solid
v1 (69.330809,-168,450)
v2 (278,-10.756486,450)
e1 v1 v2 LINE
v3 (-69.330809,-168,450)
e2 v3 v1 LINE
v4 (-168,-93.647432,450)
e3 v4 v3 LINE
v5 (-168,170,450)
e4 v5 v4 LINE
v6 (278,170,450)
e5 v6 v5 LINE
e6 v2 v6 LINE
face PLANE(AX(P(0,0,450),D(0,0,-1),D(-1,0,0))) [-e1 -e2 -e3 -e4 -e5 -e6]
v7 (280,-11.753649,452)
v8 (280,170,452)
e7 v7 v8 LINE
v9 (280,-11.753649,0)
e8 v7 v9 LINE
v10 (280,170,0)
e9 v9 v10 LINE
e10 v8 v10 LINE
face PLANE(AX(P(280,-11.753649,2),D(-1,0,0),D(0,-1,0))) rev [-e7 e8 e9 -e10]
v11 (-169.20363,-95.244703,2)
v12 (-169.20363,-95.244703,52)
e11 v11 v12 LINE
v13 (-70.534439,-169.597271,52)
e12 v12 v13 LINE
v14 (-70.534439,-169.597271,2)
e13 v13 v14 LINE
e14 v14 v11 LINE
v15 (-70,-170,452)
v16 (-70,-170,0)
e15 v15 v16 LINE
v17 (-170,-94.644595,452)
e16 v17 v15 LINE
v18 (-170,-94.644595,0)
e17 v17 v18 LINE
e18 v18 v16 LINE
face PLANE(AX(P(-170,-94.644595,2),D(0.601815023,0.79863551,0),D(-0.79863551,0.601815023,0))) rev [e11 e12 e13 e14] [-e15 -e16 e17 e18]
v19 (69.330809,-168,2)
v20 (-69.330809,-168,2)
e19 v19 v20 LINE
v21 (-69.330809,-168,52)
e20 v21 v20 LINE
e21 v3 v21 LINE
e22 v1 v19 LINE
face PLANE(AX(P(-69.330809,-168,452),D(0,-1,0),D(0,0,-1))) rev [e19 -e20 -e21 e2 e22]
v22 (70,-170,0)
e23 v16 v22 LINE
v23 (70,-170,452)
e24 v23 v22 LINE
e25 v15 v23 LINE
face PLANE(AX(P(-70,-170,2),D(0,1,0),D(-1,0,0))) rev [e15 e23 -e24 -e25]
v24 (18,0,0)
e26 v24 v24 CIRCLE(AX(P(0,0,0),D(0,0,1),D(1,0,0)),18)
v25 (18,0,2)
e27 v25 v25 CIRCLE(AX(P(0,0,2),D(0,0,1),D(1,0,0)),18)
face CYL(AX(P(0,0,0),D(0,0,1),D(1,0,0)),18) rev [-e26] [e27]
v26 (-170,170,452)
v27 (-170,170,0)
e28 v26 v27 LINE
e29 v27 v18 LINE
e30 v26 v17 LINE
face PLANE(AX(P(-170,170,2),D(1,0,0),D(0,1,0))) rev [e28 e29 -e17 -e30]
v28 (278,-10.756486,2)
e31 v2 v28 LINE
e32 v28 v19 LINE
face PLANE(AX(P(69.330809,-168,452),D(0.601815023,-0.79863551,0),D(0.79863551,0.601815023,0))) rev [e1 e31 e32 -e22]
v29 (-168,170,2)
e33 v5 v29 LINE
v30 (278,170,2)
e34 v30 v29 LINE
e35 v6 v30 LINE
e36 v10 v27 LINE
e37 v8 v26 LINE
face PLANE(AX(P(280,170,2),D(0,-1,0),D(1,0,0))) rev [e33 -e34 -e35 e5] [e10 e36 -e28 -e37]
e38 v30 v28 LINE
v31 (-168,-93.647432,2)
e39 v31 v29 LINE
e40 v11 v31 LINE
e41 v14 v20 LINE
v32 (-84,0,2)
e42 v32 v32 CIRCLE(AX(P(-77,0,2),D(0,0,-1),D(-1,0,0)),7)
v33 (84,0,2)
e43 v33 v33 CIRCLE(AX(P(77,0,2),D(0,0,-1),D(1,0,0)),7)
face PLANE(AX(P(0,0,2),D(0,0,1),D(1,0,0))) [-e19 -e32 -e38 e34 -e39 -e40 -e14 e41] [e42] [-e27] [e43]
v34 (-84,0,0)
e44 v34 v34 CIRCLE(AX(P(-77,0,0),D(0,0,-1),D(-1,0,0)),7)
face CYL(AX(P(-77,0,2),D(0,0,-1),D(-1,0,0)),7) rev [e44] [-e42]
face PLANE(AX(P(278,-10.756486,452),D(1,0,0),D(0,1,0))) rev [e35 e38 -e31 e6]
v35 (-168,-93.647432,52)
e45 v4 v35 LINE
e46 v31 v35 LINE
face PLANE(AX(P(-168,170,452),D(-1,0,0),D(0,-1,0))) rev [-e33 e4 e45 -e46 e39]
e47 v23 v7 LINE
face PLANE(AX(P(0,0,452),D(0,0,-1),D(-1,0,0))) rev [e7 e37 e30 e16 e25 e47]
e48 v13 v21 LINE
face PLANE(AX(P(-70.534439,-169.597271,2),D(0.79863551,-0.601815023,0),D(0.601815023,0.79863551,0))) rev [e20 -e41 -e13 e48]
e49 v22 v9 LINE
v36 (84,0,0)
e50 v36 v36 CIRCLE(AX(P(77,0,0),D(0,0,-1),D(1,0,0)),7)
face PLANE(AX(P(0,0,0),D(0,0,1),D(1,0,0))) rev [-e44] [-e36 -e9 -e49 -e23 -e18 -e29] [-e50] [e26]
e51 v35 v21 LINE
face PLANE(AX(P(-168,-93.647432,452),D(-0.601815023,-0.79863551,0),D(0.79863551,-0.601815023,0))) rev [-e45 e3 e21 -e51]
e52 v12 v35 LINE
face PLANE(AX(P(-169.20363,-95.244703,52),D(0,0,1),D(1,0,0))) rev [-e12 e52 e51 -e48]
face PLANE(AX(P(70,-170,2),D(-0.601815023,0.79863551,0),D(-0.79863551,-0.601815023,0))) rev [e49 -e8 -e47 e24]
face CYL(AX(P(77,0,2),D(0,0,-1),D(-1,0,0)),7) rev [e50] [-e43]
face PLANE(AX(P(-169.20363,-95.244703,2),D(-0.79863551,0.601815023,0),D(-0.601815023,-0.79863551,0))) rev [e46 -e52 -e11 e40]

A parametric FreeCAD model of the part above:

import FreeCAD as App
import Part
import Sketcher
Q = App.Units.Quantity

doc = App.newDocument("Part")
body = doc.addObject("PartDesign::Body", "Body")

# Sketch on XY plane
sketch1 = body.newObject("Sketcher::SketchObject", "Sketch")
sketch1.AttachmentSupport = (doc.getObject("XY_Plane"), [""])
sketch1.MapMode = "FlatFace"
sketch1.addGeometry(Part.LineSegment(App.Vector(-70, -170, 0), App.Vector(70, -170, 0)), False)
sketch1.addGeometry(Part.LineSegment(App.Vector(70, -170, 0), App.Vector(280, -12, 0)), False)
sketch1.addGeometry(Part.LineSegment(App.Vector(280, -12, 0), App.Vector(280, 170, 0)), False)
sketch1.addGeometry(Part.LineSegment(App.Vector(280, 170, 0), App.Vector(-170, 170, 0)), False)
sketch1.addGeometry(Part.LineSegment(App.Vector(-170, 170, 0), App.Vector(-170, -95, 0)), False)
sketch1.addGeometry(Part.LineSegment(App.Vector(-170, -95, 0), App.Vector(-70, -170, 0)), False)
sketch1.addConstraint(Sketcher.Constraint("Coincident", 0, 2, 1, 1))
sketch1.addConstraint(Sketcher.Constraint("Coincident", 1, 2, 2, 1))
sketch1.addConstraint(Sketcher.Constraint("Coincident", 2, 2, 3, 1))
sketch1.addConstraint(Sketcher.Constraint("Coincident", 3, 2, 4, 1))
sketch1.addConstraint(Sketcher.Constraint("Coincident", 4, 2, 5, 1))
sketch1.addConstraint(Sketcher.Constraint("Coincident", 5, 2, 0, 1))
sketch1.addConstraint(Sketcher.Constraint("Horizontal", 0))
sketch1.addConstraint(Sketcher.Constraint("Vertical", 2))
sketch1.addConstraint(Sketcher.Constraint("Horizontal", 3))
sketch1.addConstraint(Sketcher.Constraint("Vertical", 4))
sketch1.addConstraint(Sketcher.Constraint("DistanceX", 0, 1, 0, 2, Q("140 mm")))
sketch1.addConstraint(Sketcher.Constraint("DistanceX", 3, 2, 3, 1, Q("450 mm")))
sketch1.addConstraint(Sketcher.Constraint("Angle", 1, Q("37 deg")))
sketch1.addConstraint(Sketcher.Constraint("Angle", 5, Q("-37 deg")))
sketch1.addConstraint(Sketcher.Constraint("DistanceX", -1, 1, 0, 2, Q("70 mm")))
sketch1.addConstraint(Sketcher.Constraint("DistanceY", 0, 2, -1, 1, Q("170 mm")))
sketch1.addConstraint(Sketcher.Constraint("DistanceX", -1, 1, 1, 2, Q("280 mm")))
sketch1.addConstraint(Sketcher.Constraint("DistanceY", -1, 1, 2, 2, Q("170 mm")))
pad1 = body.newObject("PartDesign::Pad", "Pad")
pad1.Profile = sketch1
pad1.Length = 2

# Sketch on XY plane
sketch2 = body.newObject("Sketcher::SketchObject", "Sketch001")
sketch2.AttachmentSupport = (doc.getObject("XY_Plane"), [""])
sketch2.MapMode = "FlatFace"
sketch2.AttachmentOffset = App.Placement(App.Vector(0, 0, 2), App.Rotation())
sketch2.addGeometry(Part.LineSegment(App.Vector(-168, 170, 0), App.Vector(-170, 170, 0)), False)
sketch2.addGeometry(Part.LineSegment(App.Vector(-170, 170, 0), App.Vector(-170, -94.6, 0)), False)
sketch2.addGeometry(Part.LineSegment(App.Vector(-170, -94.6, 0), App.Vector(-70, -170, 0)), False)
sketch2.addGeometry(Part.LineSegment(App.Vector(-70, -170, 0), App.Vector(70, -170, 0)), False)
sketch2.addGeometry(Part.LineSegment(App.Vector(70, -170, 0), App.Vector(280, -11.8, 0)), False)
sketch2.addGeometry(Part.LineSegment(App.Vector(280, -11.8, 0), App.Vector(280, 170, 0)), False)
sketch2.addGeometry(Part.LineSegment(App.Vector(280, 170, 0), App.Vector(278, 170, 0)), False)
sketch2.addGeometry(Part.LineSegment(App.Vector(278, 170, 0), App.Vector(278, -10.8, 0)), False)
sketch2.addGeometry(Part.LineSegment(App.Vector(278, -10.8, 0), App.Vector(69.3, -168, 0)), False)
sketch2.addGeometry(Part.LineSegment(App.Vector(69.3, -168, 0), App.Vector(-69.3, -168, 0)), False)
sketch2.addGeometry(Part.LineSegment(App.Vector(-69.3, -168, 0), App.Vector(-168, -93.6, 0)), False)
sketch2.addGeometry(Part.LineSegment(App.Vector(-168, -93.6, 0), App.Vector(-168, 170, 0)), False)
sketch2.addConstraint(Sketcher.Constraint("Coincident", 0, 2, 1, 1))
sketch2.addConstraint(Sketcher.Constraint("Coincident", 1, 2, 2, 1))
sketch2.addConstraint(Sketcher.Constraint("Coincident", 2, 2, 3, 1))
sketch2.addConstraint(Sketcher.Constraint("Coincident", 3, 2, 4, 1))
sketch2.addConstraint(Sketcher.Constraint("Coincident", 4, 2, 5, 1))
sketch2.addConstraint(Sketcher.Constraint("Coincident", 5, 2, 6, 1))
sketch2.addConstraint(Sketcher.Constraint("Coincident", 6, 2, 7, 1))
sketch2.addConstraint(Sketcher.Constraint("Coincident", 7, 2, 8, 1))
sketch2.addConstraint(Sketcher.Constraint("Coincident", 8, 2, 9, 1))
sketch2.addConstraint(Sketcher.Constraint("Coincident", 9, 2, 10, 1))
sketch2.addConstraint(Sketcher.Constraint("Coincident", 10, 2, 11, 1))
sketch2.addConstraint(Sketcher.Constraint("Coincident", 11, 2, 0, 1))
sketch2.addConstraint(Sketcher.Constraint("Horizontal", 0))
sketch2.addConstraint(Sketcher.Constraint("Vertical", 1))
sketch2.addConstraint(Sketcher.Constraint("Horizontal", 3))
sketch2.addConstraint(Sketcher.Constraint("Vertical", 5))
sketch2.addConstraint(Sketcher.Constraint("Horizontal", 6))
sketch2.addConstraint(Sketcher.Constraint("Vertical", 7))
sketch2.addConstraint(Sketcher.Constraint("Horizontal", 9))
sketch2.addConstraint(Sketcher.Constraint("Vertical", 11))
sketch2.addConstraint(Sketcher.Constraint("Parallel", 4, 8))
sketch2.addConstraint(Sketcher.Constraint("Parallel", 2, 10))
sketch2.addConstraint(Sketcher.Constraint("Horizontal", 0, 2, 5, 2))
sketch2.addConstraint(Sketcher.Constraint("Equal", 0, 6))
sketch2.addConstraint(Sketcher.Constraint("DistanceX", 0, 2, 0, 1, Q("2 mm")))
sketch2.addConstraint(Sketcher.Constraint("DistanceX", 3, 1, 3, 2, Q("140 mm")))
sketch2.addConstraint(Sketcher.Constraint("Angle", 2, Q("-37 deg")))
sketch2.addConstraint(Sketcher.Constraint("Angle", 4, Q("37 deg")))
sketch2.addConstraint(Sketcher.Constraint("DistanceX", 0, 2, -1, 1, Q("170 mm")))
sketch2.addConstraint(Sketcher.Constraint("DistanceY", -1, 1, 0, 2, Q("170 mm")))
sketch2.addConstraint(Sketcher.Constraint("DistanceX", 2, 2, -1, 1, Q("70 mm")))
sketch2.addConstraint(Sketcher.Constraint("DistanceY", 2, 2, -1, 1, Q("170 mm")))
sketch2.addConstraint(Sketcher.Constraint("DistanceX", -1, 1, 4, 2, Q("280 mm")))
sketch2.addConstraint(Sketcher.Constraint("DistanceY", 8, 2, -1, 1, Q("168 mm")))
sketch2.addConstraint(Sketcher.Constraint("DistanceX", 9, 2, 9, 1, Q("138.661619 mm")))
sketch2.addConstraint(Sketcher.Constraint("DistanceY", 11, 1, 11, 2, Q("263.647432 mm")))
pad2 = body.newObject("PartDesign::Pad", "Pad001")
pad2.Profile = sketch2
pad2.Length = 450

# Sketch on XY plane
sketch3 = body.newObject("Sketcher::SketchObject", "Sketch002")
sketch3.AttachmentSupport = (doc.getObject("XY_Plane"), [""])
sketch3.MapMode = "FlatFace"
sketch3.AttachmentOffset = App.Placement(App.Vector(0, 0, 452), App.Rotation())
sketch3.addGeometry(Part.LineSegment(App.Vector(280, 170, 0), App.Vector(-170, 170, 0)), False)
sketch3.addGeometry(Part.LineSegment(App.Vector(-170, 170, 0), App.Vector(-170, -95, 0)), False)
sketch3.addGeometry(Part.LineSegment(App.Vector(-170, -95, 0), App.Vector(-70, -170, 0)), False)
sketch3.addGeometry(Part.LineSegment(App.Vector(-70, -170, 0), App.Vector(70, -170, 0)), False)
sketch3.addGeometry(Part.LineSegment(App.Vector(70, -170, 0), App.Vector(280, -12, 0)), False)
sketch3.addGeometry(Part.LineSegment(App.Vector(280, -12, 0), App.Vector(280, 170, 0)), False)
sketch3.addConstraint(Sketcher.Constraint("Coincident", 0, 2, 1, 1))
sketch3.addConstraint(Sketcher.Constraint("Coincident", 1, 2, 2, 1))
sketch3.addConstraint(Sketcher.Constraint("Coincident", 2, 2, 3, 1))
sketch3.addConstraint(Sketcher.Constraint("Coincident", 3, 2, 4, 1))
sketch3.addConstraint(Sketcher.Constraint("Coincident", 4, 2, 5, 1))
sketch3.addConstraint(Sketcher.Constraint("Coincident", 5, 2, 0, 1))
sketch3.addConstraint(Sketcher.Constraint("Horizontal", 0))
sketch3.addConstraint(Sketcher.Constraint("Vertical", 1))
sketch3.addConstraint(Sketcher.Constraint("Horizontal", 3))
sketch3.addConstraint(Sketcher.Constraint("Vertical", 5))
sketch3.addConstraint(Sketcher.Constraint("DistanceX", 0, 2, 0, 1, Q("450 mm")))
sketch3.addConstraint(Sketcher.Constraint("DistanceX", 3, 1, 3, 2, Q("140 mm")))
sketch3.addConstraint(Sketcher.Constraint("Angle", 2, Q("-37 deg")))
sketch3.addConstraint(Sketcher.Constraint("Angle", 4, Q("37 deg")))
sketch3.addConstraint(Sketcher.Constraint("DistanceX", 0, 2, -1, 1, Q("170 mm")))
sketch3.addConstraint(Sketcher.Constraint("DistanceY", -1, 1, 0, 2, Q("170 mm")))
sketch3.addConstraint(Sketcher.Constraint("DistanceX", 2, 2, -1, 1, Q("70 mm")))
sketch3.addConstraint(Sketcher.Constraint("DistanceY", 2, 2, -1, 1, Q("170 mm")))
pad3 = body.newObject("PartDesign::Pad", "Pad002")
pad3.Profile = sketch3
pad3.Length = 2
pad3.Reversed = True

# Sketch on XY plane
sketch4 = body.newObject("Sketcher::SketchObject", "Sketch003")
sketch4.AttachmentSupport = (doc.getObject("XY_Plane"), [""])
sketch4.MapMode = "FlatFace"
sketch4.AttachmentOffset = App.Placement(App.Vector(0, 0, 2), App.Rotation())
sketch4.addGeometry(Part.Circle(App.Vector(0, 0, 0), App.Vector(0, 0, 1), 18), False)
sketch4.addConstraint(Sketcher.Constraint("Coincident", 0, 3, -1, 1))
sketch4.addConstraint(Sketcher.Constraint("Diameter", 0, Q("36 mm")))
pocket1 = body.newObject("PartDesign::Pocket", "Pocket")
pocket1.Profile = sketch4
pocket1.Length = 2

# Sketch on an angled plane
sketch5 = body.newObject("Sketcher::SketchObject", "Sketch004")
sketch5.Placement = App.Placement(App.Vector(-105.856307, -140.476064, 0), App.Rotation(App.Vector(0.79863551, -0.601815023, 0), App.Vector(0, 0, -1), App.Vector(0.601815023, 0.79863551, 0), "ZXY"))
sketch5.addGeometry(Part.LineSegment(App.Vector(-78, -2, 0), App.Vector(-78, -52, 0)), False)
sketch5.addGeometry(Part.LineSegment(App.Vector(-78, -52, 0), App.Vector(46, -52, 0)), False)
sketch5.addGeometry(Part.LineSegment(App.Vector(46, -52, 0), App.Vector(46, -2, 0)), False)
sketch5.addGeometry(Part.LineSegment(App.Vector(46, -2, 0), App.Vector(-78, -2, 0)), False)
sketch5.addConstraint(Sketcher.Constraint("Coincident", 0, 2, 1, 1))
sketch5.addConstraint(Sketcher.Constraint("Coincident", 1, 2, 2, 1))
sketch5.addConstraint(Sketcher.Constraint("Coincident", 2, 2, 3, 1))
sketch5.addConstraint(Sketcher.Constraint("Coincident", 3, 2, 0, 1))
sketch5.addConstraint(Sketcher.Constraint("Vertical", 0))
sketch5.addConstraint(Sketcher.Constraint("Horizontal", 1))
sketch5.addConstraint(Sketcher.Constraint("Vertical", 2))
sketch5.addConstraint(Sketcher.Constraint("Horizontal", 3))
sketch5.addConstraint(Sketcher.Constraint("DistanceY", 0, 2, 0, 1, Q("50 mm")))
sketch5.addConstraint(Sketcher.Constraint("DistanceY", 0, 2, -1, 1, Q("52 mm")))
sketch5.addConstraint(Sketcher.Constraint("DistanceX", 1, 1, 1, 2, Q("123.547212 mm")))
sketch5.addConstraint(Sketcher.Constraint("DistanceX", 0, 2, -1, 1, Q("77.812334 mm")))
pocket2 = body.newObject("PartDesign::Pocket", "Pocket001")
pocket2.Profile = sketch5
pocket2.Length = 2

# Sketch on XY plane
sketch6 = body.newObject("Sketcher::SketchObject", "Sketch005")
sketch6.AttachmentSupport = (doc.getObject("XY_Plane"), [""])
sketch6.MapMode = "FlatFace"
sketch6.addGeometry(Part.Circle(App.Vector(-77, 0, 0), App.Vector(0, 0, 1), 7), False)
sketch6.addGeometry(Part.Circle(App.Vector(77, 0, 0), App.Vector(0, 0, 1), 7), False)
sketch6.addConstraint(Sketcher.Constraint("Equal", 0, 1))
sketch6.addConstraint(Sketcher.Constraint("Symmetric", 0, 3, 1, 3, -1, 1))
sketch6.addConstraint(Sketcher.Constraint("PointOnObject", 0, 3, -1))
sketch6.addConstraint(Sketcher.Constraint("Diameter", 0, Q("14 mm")))
sketch6.addConstraint(Sketcher.Constraint("DistanceX", 0, 3, -1, 1, Q("77 mm")))
pocket3 = body.newObject("PartDesign::Pocket", "Pocket002")
pocket3.Profile = sketch6
pocket3.Length = 2
pocket3.Reversed = True

doc.recompute()
